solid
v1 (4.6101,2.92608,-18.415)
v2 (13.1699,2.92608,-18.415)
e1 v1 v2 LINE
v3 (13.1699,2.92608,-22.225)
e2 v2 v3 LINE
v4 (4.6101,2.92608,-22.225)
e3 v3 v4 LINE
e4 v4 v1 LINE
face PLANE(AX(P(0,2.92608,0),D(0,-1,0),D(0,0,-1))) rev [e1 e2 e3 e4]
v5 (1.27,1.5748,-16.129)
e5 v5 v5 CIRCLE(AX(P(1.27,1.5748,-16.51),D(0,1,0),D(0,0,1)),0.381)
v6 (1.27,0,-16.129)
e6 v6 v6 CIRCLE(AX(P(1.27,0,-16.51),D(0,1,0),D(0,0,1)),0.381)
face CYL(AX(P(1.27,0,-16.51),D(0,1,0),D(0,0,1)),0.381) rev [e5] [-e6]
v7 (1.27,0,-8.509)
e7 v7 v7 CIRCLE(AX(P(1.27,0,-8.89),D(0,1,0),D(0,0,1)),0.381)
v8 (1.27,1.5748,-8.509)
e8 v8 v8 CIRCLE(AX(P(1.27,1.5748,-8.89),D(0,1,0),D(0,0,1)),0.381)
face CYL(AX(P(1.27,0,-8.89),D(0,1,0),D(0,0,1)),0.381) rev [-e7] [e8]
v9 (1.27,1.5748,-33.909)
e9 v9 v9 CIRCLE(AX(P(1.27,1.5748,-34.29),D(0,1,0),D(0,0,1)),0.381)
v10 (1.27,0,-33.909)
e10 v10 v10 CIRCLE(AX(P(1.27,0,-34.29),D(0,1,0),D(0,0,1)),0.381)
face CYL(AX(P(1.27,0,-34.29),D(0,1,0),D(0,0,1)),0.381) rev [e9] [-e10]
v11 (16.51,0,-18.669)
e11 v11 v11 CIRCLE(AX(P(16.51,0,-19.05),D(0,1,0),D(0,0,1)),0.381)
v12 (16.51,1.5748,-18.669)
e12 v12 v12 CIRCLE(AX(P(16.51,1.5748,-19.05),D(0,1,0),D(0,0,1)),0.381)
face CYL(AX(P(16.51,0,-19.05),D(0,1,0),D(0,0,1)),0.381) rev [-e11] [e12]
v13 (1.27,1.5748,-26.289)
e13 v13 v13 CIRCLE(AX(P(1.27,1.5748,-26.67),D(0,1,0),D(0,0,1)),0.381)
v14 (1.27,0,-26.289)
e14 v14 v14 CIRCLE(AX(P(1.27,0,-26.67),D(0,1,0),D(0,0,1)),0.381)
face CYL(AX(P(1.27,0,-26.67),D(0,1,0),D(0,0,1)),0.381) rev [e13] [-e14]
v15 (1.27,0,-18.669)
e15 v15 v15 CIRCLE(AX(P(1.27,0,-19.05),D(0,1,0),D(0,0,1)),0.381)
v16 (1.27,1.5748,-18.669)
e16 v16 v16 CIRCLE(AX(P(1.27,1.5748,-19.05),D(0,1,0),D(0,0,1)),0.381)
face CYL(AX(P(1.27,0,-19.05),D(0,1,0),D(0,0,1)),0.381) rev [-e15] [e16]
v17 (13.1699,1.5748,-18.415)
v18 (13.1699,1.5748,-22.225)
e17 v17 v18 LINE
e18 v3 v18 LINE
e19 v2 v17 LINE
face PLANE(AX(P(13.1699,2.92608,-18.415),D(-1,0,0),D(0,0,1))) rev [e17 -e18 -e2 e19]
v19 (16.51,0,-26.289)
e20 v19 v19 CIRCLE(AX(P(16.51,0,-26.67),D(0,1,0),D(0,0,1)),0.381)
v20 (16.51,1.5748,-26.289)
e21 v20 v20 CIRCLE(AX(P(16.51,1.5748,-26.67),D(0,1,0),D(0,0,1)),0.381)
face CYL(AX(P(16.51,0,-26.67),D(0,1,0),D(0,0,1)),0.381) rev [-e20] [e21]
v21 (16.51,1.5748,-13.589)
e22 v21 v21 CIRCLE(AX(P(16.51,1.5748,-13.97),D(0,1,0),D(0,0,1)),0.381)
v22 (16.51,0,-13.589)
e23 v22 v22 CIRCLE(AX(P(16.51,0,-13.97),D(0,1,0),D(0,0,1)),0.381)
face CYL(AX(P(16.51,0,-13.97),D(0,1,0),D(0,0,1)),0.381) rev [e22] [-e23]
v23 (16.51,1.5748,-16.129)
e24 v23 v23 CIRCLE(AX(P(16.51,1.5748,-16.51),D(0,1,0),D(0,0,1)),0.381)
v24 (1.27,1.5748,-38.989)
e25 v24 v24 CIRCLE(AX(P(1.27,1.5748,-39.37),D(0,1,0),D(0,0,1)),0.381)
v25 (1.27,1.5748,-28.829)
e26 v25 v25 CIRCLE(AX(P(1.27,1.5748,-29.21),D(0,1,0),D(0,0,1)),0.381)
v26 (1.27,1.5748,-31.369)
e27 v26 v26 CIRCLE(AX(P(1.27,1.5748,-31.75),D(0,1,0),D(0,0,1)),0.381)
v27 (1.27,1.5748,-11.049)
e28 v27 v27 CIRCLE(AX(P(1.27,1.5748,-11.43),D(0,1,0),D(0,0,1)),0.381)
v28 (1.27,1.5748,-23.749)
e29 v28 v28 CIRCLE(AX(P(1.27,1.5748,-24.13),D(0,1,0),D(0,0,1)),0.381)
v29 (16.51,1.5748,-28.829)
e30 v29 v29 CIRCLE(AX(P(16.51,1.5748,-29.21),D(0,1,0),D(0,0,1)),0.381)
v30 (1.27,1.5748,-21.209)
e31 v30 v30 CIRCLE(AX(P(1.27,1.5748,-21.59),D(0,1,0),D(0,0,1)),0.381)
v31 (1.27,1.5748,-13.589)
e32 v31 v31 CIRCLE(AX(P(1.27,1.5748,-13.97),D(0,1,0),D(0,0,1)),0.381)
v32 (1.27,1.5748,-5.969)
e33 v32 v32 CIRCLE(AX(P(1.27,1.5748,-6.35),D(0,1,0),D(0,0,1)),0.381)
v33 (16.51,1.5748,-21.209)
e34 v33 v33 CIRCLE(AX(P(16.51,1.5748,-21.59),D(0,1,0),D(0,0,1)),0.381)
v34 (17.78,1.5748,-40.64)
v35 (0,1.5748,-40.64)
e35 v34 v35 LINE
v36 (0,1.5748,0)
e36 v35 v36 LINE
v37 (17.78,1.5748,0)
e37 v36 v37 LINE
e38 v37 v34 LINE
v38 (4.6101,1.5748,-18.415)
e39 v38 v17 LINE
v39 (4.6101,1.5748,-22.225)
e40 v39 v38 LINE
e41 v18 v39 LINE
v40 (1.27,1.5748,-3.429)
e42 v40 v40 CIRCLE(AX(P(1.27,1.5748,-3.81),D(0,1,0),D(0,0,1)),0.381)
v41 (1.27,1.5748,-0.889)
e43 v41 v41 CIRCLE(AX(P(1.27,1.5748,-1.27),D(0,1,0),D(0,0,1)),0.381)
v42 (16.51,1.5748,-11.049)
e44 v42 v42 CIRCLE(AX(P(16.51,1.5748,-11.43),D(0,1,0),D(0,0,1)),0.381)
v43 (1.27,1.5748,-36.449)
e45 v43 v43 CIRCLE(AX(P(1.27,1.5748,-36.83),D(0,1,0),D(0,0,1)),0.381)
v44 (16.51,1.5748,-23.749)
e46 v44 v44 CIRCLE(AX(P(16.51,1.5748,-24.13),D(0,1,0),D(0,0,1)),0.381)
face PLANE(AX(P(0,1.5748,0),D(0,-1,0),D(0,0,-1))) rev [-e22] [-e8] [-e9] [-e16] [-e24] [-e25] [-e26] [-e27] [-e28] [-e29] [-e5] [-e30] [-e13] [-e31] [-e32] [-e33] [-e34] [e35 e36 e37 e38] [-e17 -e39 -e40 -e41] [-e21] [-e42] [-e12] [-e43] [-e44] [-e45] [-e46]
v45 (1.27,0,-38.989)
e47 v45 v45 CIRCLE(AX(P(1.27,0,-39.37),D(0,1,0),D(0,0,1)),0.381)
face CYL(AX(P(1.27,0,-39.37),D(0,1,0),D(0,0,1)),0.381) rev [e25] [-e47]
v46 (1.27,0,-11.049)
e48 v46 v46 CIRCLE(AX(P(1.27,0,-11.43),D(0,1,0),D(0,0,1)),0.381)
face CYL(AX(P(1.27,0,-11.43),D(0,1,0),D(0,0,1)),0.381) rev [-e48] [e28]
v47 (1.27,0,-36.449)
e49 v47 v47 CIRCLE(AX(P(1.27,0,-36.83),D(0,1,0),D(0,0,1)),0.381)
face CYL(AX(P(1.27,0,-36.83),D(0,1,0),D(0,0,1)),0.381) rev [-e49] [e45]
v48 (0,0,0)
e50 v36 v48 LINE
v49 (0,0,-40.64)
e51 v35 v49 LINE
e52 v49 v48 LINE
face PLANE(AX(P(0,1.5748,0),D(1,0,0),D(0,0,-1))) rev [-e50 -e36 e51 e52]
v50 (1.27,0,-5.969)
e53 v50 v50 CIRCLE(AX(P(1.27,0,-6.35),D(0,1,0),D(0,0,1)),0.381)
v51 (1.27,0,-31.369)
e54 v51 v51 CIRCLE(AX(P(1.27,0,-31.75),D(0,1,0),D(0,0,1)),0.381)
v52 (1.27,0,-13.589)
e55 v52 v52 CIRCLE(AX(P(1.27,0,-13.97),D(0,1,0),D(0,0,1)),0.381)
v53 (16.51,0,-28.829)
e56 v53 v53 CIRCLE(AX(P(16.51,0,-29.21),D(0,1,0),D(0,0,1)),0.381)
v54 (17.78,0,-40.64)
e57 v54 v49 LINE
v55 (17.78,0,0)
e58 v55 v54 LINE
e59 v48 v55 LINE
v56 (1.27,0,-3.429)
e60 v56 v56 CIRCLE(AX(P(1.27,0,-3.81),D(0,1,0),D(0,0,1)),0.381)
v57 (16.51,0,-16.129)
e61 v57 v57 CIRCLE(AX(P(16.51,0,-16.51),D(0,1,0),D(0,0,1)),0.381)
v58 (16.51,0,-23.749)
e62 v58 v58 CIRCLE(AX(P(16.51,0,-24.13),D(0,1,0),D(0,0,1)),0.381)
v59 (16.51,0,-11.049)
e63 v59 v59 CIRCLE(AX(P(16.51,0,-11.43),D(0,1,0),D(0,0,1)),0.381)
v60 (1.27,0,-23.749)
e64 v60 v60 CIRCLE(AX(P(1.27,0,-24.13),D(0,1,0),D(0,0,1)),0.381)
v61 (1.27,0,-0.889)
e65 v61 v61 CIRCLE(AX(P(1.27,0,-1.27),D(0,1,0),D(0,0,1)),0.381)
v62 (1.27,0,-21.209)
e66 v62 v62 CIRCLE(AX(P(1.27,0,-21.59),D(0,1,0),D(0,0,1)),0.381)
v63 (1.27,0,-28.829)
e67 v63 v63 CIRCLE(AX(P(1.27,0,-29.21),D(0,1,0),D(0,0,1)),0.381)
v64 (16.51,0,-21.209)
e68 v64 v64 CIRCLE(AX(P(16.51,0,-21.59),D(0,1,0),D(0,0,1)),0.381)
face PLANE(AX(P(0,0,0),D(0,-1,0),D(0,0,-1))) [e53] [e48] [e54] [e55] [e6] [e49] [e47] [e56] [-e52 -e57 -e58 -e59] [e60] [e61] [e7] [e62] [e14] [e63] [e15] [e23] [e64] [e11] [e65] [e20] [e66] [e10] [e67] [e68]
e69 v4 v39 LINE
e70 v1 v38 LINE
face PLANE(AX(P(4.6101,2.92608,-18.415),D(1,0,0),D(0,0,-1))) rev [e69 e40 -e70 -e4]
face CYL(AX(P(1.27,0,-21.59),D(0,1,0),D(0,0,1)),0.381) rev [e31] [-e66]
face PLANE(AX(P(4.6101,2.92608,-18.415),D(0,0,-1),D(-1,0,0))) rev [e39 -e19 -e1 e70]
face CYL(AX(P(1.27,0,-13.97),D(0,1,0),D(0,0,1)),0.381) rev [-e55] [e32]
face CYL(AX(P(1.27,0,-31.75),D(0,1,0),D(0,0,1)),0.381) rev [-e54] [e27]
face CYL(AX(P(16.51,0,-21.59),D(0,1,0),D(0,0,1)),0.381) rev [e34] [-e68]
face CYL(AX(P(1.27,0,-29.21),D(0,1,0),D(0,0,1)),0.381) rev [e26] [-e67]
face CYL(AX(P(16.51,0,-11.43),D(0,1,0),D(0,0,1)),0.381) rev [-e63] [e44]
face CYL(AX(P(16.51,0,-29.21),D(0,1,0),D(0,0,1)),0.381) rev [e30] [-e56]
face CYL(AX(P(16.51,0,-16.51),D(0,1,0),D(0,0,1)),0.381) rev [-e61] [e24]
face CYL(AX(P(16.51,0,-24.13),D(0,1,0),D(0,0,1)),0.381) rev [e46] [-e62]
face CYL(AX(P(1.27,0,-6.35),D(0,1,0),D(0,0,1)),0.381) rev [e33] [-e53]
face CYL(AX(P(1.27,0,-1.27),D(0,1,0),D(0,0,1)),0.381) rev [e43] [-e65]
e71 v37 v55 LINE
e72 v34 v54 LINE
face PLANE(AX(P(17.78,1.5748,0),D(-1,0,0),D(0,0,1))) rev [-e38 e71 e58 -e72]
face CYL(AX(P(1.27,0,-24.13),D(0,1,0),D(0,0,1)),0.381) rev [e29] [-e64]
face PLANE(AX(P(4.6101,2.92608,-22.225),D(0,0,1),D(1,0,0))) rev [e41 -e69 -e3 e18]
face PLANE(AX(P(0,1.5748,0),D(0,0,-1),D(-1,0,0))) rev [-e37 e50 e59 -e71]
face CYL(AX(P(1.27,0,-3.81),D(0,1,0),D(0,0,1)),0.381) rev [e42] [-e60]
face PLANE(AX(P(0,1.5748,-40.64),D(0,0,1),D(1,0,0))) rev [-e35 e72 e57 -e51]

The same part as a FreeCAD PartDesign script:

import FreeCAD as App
import Part
import Sketcher

V = App.Vector
Q = App.Units.Quantity

doc = App.newDocument("Part")
params = doc.addObject("Spreadsheet::Sheet", "Params")
for row, (alias, value) in enumerate([
    ("sketch1_width", "0.7 in"),
    ("sketch1_height", "1.6 in"),
    ("pad1_length", "0.062 in"),
    ("sketch2_diameter", "0.03 in"),
    ("pocket1_length", "0.062 in"),
    ("linearpattern_pitch", "0.1 in"),
    ("sketch3_diameter", "0.03 in"),
    ("pocket2_length", "0.062 in"),
    ("linearpattern2_pitch", "0.1 in"),
    ("sketch4_height", "0.15 in"),
    ("sketch4_width", "0.337 in"),
    ("pad2_length", "0.0532 in"),
], start=1):
    params.set(f"A{row}", alias)
    params.set(f"B{row}", "=" + value)
    params.setAlias(f"B{row}", alias)

body = doc.addObject("PartDesign::Body", "Body")

# Sketch on XZ plane
sketch1 = body.newObject("Sketcher::SketchObject", "Sketch")
sketch1.AttachmentSupport = (doc.getObject("XZ_Plane"), [""])
sketch1.MapMode = "FlatFace"
sketch1.addGeometry([
    Part.LineSegment(V(0, -41, 0), V(0, 0, 0)),
    Part.LineSegment(V(0, 0, 0), V(18, 0, 0)),
    Part.LineSegment(V(18, 0, 0), V(18, -41, 0)),
    Part.LineSegment(V(18, -41, 0), V(0, -41, 0)),
], False)
sketch1.addConstraint([
    Sketcher.Constraint("Coincident", 0, 2, 1, 1),
    Sketcher.Constraint("Coincident", 1, 2, 2, 1),
    Sketcher.Constraint("Coincident", 2, 2, 3, 1),
    Sketcher.Constraint("Coincident", 3, 2, 0, 1),
    Sketcher.Constraint("Vertical", 0),
    Sketcher.Constraint("Horizontal", 1),
    Sketcher.Constraint("Vertical", 2),
    Sketcher.Constraint("Horizontal", 3),
    Sketcher.Constraint("Coincident", 0, 2, -1, 1),
    Sketcher.Constraint("DistanceX", 1, 1, 1, 2, Q("0.7 in")),
    Sketcher.Constraint("DistanceY", 0, 1, 0, 2, Q("1.6 in")),
])
sketch1.setExpression("Constraints[9]", "Params.sketch1_width")
sketch1.setExpression("Constraints[10]", "Params.sketch1_height")
pad1 = body.newObject("PartDesign::Pad", "Pad")
pad1.Profile = sketch1
pad1.setExpression("Length", "Params.pad1_length")
pad1.Reversed = True

# Sketch on XZ plane
sketch2 = body.newObject("Sketcher::SketchObject", "Sketch001")
sketch2.AttachmentSupport = (doc.getObject("XZ_Plane"), [""])
sketch2.MapMode = "FlatFace"
sketch2.AttachmentOffset = App.Placement(V(0, 0, -0.062 * 25.4), App.Rotation())
sketch2.addGeometry(Part.Circle(V(1.27, -1.27, 0), V(0, 0, 1), 0.38), False)
sketch2.addConstraint([
    Sketcher.Constraint("Diameter", 0, Q("0.03 in")),
    Sketcher.Constraint("DistanceX", -1, 1, 0, 3, Q("0.05 in")),
    Sketcher.Constraint("DistanceY", 0, 3, -1, 1, Q("0.05 in")),
])
sketch2.setExpression("Constraints[0]", "Params.sketch2_diameter")
pocket1 = body.newObject("PartDesign::Pocket", "Pocket")
pocket1.Profile = sketch2
pocket1.setExpression("Length", "Params.pocket1_length")
pocket1.Reversed = True
doc.recompute()

linearpattern = body.newObject("PartDesign::LinearPattern", "LinearPattern")
linearpattern.Originals = [pocket1]
linearpattern.Direction = (doc.getObject("Z_Axis"), [""])
linearpattern.Mode = "offset"
linearpattern.setExpression("Offset", "Params.linearpattern_pitch")
linearpattern.Occurrences = 16
linearpattern.Reversed = True
body.Tip = linearpattern

# Sketch on XZ plane
sketch3 = body.newObject("Sketcher::SketchObject", "Sketch002")
sketch3.AttachmentSupport = (doc.getObject("XZ_Plane"), [""])
sketch3.MapMode = "FlatFace"
sketch3.AttachmentOffset = App.Placement(V(0, 0, -0.062 * 25.4), App.Rotation())
sketch3.addGeometry(Part.Circle(V(16.51, -11.43, 0), V(0, 0, 1), 0.38), False)
sketch3.addConstraint([
    Sketcher.Constraint("Diameter", 0, Q("0.03 in")),
    Sketcher.Constraint("DistanceX", -1, 1, 0, 3, Q("0.65 in")),
    Sketcher.Constraint("DistanceY", 0, 3, -1, 1, Q("0.45 in")),
])
sketch3.setExpression("Constraints[0]", "Params.sketch3_diameter")
pocket2 = body.newObject("PartDesign::Pocket", "Pocket001")
pocket2.Profile = sketch3
pocket2.setExpression("Length", "Params.pocket2_length")
pocket2.Reversed = True
doc.recompute()

linearpattern2 = body.newObject("PartDesign::LinearPattern", "LinearPattern001")
linearpattern2.Originals = [pocket2]
linearpattern2.Direction = (doc.getObject("Z_Axis"), [""])
linearpattern2.Mode = "offset"
linearpattern2.setExpression("Offset", "Params.linearpattern2_pitch")
linearpattern2.Occurrences = 8
linearpattern2.Reversed = True
body.Tip = linearpattern2

# Sketch on XZ plane
sketch4 = body.newObject("Sketcher::SketchObject", "Sketch003")
sketch4.AttachmentSupport = (doc.getObject("XZ_Plane"), [""])
sketch4.MapMode = "FlatFace"
sketch4.AttachmentOffset = App.Placement(V(0, 0, -0.062 * 25.4), App.Rotation())
sketch4.addGeometry([
    Part.LineSegment(V(4.6, -22.2, 0), V(4.6, -18.4, 0)),
    Part.LineSegment(V(4.6, -18.4, 0), V(13.2, -18.4, 0)),
    Part.LineSegment(V(13.2, -18.4, 0), V(13.2, -22.2, 0)),
    Part.LineSegment(V(13.2, -22.2, 0), V(4.6, -22.2, 0)),
], False)
sketch4.addConstraint([
    Sketcher.Constraint("Coincident", 0, 2, 1, 1),
    Sketcher.Constraint("Coincident", 1, 2, 2, 1),
    Sketcher.Constraint("Coincident", 2, 2, 3, 1),
    Sketcher.Constraint("Coincident", 3, 2, 0, 1),
    Sketcher.Constraint("Vertical", 0),
    Sketcher.Constraint("Horizontal", 1),
    Sketcher.Constraint("Vertical", 2),
    Sketcher.Constraint("Horizontal", 3),
    Sketcher.Constraint("DistanceY", 0, 1, 0, 2, Q("0.15 in")),
    Sketcher.Constraint("DistanceX", 1, 1, 1, 2, Q("0.337 in")),
    Sketcher.Constraint("DistanceY", 0, 2, -1, 1, Q("0.725 in")),
    Sketcher.Constraint("DistanceX", -1, 1, 0, 2, Q("0.1815 in")),
])
sketch4.setExpression("Constraints[8]", "Params.sketch4_height")
sketch4.setExpression("Constraints[9]", "Params.sketch4_width")
pad2 = body.newObject("PartDesign::Pad", "Pad001")
pad2.Profile = sketch4
pad2.setExpression("Length", "Params.pad2_length")
pad2.Reversed = True

doc.recompute()
